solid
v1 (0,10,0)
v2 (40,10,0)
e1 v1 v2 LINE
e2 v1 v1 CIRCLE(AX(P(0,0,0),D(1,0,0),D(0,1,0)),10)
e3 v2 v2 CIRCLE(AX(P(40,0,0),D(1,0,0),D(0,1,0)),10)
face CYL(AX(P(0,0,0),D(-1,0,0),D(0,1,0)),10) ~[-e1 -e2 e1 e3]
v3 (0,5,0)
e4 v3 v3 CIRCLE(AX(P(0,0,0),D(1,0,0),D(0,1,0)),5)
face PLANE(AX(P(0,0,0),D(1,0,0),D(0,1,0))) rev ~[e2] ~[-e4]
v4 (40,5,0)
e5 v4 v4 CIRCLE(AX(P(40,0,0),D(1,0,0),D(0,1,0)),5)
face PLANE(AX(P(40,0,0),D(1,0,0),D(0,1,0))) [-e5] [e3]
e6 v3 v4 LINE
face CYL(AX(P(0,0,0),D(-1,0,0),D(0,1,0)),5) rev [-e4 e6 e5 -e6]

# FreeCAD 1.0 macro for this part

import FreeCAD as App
import Part
import Sketcher
from FreeCAD import Vector
Q = App.Units.Quantity

doc = App.newDocument("Part")
body = doc.addObject("PartDesign::Body", "Body")

sketch1 = body.newObject("Sketcher::SketchObject", "Sketch")
sketch1.AttachmentSupport = (doc.getObject("YZ_Plane"), [""])
sketch1.MapMode = "FlatFace"
sketch1.addGeometry([
    Part.Circle(Vector(0, 0, 0), Vector(0, 0, 1), 10),
    Part.Circle(Vector(0, 0, 0), Vector(0, 0, 1), 5),
], False)
sketch1.addConstraint([
    Sketcher.Constraint("Coincident", 0, 3, -1, 1),
    Sketcher.Constraint("Coincident", 1, 3, -1, 1),
    Sketcher.Constraint("Diameter", 0, Q("20 mm")),
    Sketcher.Constraint("Diameter", 1, Q("10 mm")),
])
pad1 = body.newObject("PartDesign::Pad", "Pad")
pad1.Profile = sketch1
pad1.Length = 40

doc.recompute()
